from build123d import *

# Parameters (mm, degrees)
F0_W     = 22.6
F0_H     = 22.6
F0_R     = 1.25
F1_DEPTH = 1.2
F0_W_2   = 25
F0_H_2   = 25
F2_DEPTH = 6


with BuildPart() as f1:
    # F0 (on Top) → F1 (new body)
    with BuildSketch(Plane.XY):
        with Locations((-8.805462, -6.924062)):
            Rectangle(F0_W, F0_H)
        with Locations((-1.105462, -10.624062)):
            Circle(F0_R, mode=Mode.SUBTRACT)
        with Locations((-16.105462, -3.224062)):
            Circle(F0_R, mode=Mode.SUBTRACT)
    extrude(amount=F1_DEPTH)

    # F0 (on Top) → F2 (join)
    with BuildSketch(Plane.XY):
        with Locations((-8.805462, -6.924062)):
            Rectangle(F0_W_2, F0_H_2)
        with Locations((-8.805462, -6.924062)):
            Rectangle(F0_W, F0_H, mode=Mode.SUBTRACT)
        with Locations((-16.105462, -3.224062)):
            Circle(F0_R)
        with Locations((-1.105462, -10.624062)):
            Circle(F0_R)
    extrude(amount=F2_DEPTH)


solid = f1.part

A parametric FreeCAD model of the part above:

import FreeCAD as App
import Part
import Sketcher

doc = App.newDocument("Part")
body = doc.addObject("PartDesign::Body", "Body")

sketch1 = doc.addObject("Sketcher::SketchObject", "Sketch")
body.addObject(sketch1)
sketch1.AttachmentSupport = (doc.XY_Plane, [""])
sketch1.MapMode = "FlatFace"
sketch1.addGeometry([
    Part.LineSegment(App.Vector(-20.1, 4.4, 0), App.Vector(-20.1, -18.2, 0)),
    Part.LineSegment(App.Vector(-20.1, -18.2, 0), App.Vector(2.5, -18.2, 0)),
    Part.LineSegment(App.Vector(2.5, -18.2, 0), App.Vector(2.5, 4.4, 0)),
    Part.LineSegment(App.Vector(2.5, 4.4, 0), App.Vector(-20.1, 4.4, 0)),
    Part.Circle(App.Vector(-1.1, -10.6, 0), App.Vector(0, 0, 1), 1.2),
    Part.Circle(App.Vector(-16.1, -3.2, 0), App.Vector(0, 0, 1), 1.2),
], False)
sketch1.addConstraint([
    Sketcher.Constraint("Coincident", 0, 2, 1, 1),
    Sketcher.Constraint("Coincident", 1, 2, 2, 1),
    Sketcher.Constraint("Coincident", 2, 2, 3, 1),
    Sketcher.Constraint("Coincident", 3, 2, 0, 1),
    Sketcher.Constraint("Vertical", 0),
    Sketcher.Constraint("Horizontal", 1),
    Sketcher.Constraint("Vertical", 2),
    Sketcher.Constraint("Horizontal", 3),
    Sketcher.Constraint("Equal", 4, 5),
    Sketcher.Constraint("Equal", 3, 0),
    Sketcher.Constraint("Diameter", 4, 2.5),
    Sketcher.Constraint("DistanceX", 1, 1, 1, 2, 22.6),
    Sketcher.Constraint("DistanceX", 5, 3, 4, 3, 15.0),
    Sketcher.Constraint("DistanceX", 0, 2, 5, 3, 4.0),
    Sketcher.Constraint("DistanceY", 0, 2, 5, 3, 15.0),
    Sketcher.Constraint("DistanceY", 4, 3, 2, 2, 15.0),
    Sketcher.Constraint("DistanceX", 4, 3, -1, 1, 1.105462),
    Sketcher.Constraint("DistanceY", 5, 3, -1, 1, 3.224062),
])
pad1 = doc.addObject("PartDesign::Pad", "Pad")
body.addObject(pad1)
pad1.Profile = sketch1
pad1.Length = 1.2

sketch2 = doc.addObject("Sketcher::SketchObject", "Sketch001")
body.addObject(sketch2)
sketch2.AttachmentSupport = (doc.XY_Plane, [""])
sketch2.MapMode = "FlatFace"
sketch2.addGeometry([
    Part.LineSegment(App.Vector(-21.3, 5.6, 0), App.Vector(-21.3, -19.4, 0)),
    Part.LineSegment(App.Vector(-21.3, -19.4, 0), App.Vector(3.7, -19.4, 0)),
    Part.LineSegment(App.Vector(3.7, -19.4, 0), App.Vector(3.7, 5.6, 0)),
    Part.LineSegment(App.Vector(3.7, 5.6, 0), App.Vector(-21.3, 5.6, 0)),
    Part.LineSegment(App.Vector(2.5, -18.2, 0), App.Vector(-20.1, -18.2, 0)),
    Part.LineSegment(App.Vector(-20.1, -18.2, 0), App.Vector(-20.1, 4.4, 0)),
    Part.LineSegment(App.Vector(-20.1, 4.4, 0), App.Vector(2.5, 4.4, 0)),
    Part.LineSegment(App.Vector(2.5, 4.4, 0), App.Vector(2.5, -18.2, 0)),
    Part.Circle(App.Vector(-16.1, -3.2, 0), App.Vector(0, 0, 1), 1.2),
    Part.Circle(App.Vector(-1.1, -10.6, 0), App.Vector(0, 0, 1), 1.2),
], False)
sketch2.addConstraint([
    Sketcher.Constraint("Coincident", 0, 2, 1, 1),
    Sketcher.Constraint("Coincident", 1, 2, 2, 1),
    Sketcher.Constraint("Coincident", 2, 2, 3, 1),
    Sketcher.Constraint("Coincident", 3, 2, 0, 1),
    Sketcher.Constraint("Coincident", 4, 2, 5, 1),
    Sketcher.Constraint("Coincident", 5, 2, 6, 1),
    Sketcher.Constraint("Coincident", 6, 2, 7, 1),
    Sketcher.Constraint("Coincident", 7, 2, 4, 1),
    Sketcher.Constraint("Vertical", 0),
    Sketcher.Constraint("Horizontal", 1),
    Sketcher.Constraint("Vertical", 2),
    Sketcher.Constraint("Horizontal", 3),
    Sketcher.Constraint("Horizontal", 4),
    Sketcher.Constraint("Vertical", 5),
    Sketcher.Constraint("Horizontal", 6),
    Sketcher.Constraint("Vertical", 7),
    Sketcher.Constraint("Equal", 8, 9),
    Sketcher.Constraint("Equal", 3, 0),
    Sketcher.Constraint("Equal", 6, 5),
    Sketcher.Constraint("Diameter", 8, 2.5),
    Sketcher.Constraint("DistanceX", 1, 1, 1, 2, 25.0),
    Sketcher.Constraint("DistanceX", 4, 2, 4, 1, 22.6),
    Sketcher.Constraint("DistanceX", 8, 3, 9, 3, 15.0),
    Sketcher.Constraint("DistanceX", 4, 2, 8, 3, 4.0),
    Sketcher.Constraint("DistanceY", 4, 2, 8, 3, 15.0),
    Sketcher.Constraint("DistanceY", 9, 3, 6, 2, 15.0),
    Sketcher.Constraint("DistanceX", 0, 2, 8, 3, 5.2),
    Sketcher.Constraint("DistanceY", 0, 2, 8, 3, 16.2),
    Sketcher.Constraint("DistanceX", 8, 3, -1, 1, 16.105462),
    Sketcher.Constraint("DistanceY", 8, 3, -1, 1, 3.224062),
])
pad2 = doc.addObject("PartDesign::Pad", "Pad001")
body.addObject(pad2)
pad2.Profile = sketch2
pad2.Length = 6

doc.recompute()
